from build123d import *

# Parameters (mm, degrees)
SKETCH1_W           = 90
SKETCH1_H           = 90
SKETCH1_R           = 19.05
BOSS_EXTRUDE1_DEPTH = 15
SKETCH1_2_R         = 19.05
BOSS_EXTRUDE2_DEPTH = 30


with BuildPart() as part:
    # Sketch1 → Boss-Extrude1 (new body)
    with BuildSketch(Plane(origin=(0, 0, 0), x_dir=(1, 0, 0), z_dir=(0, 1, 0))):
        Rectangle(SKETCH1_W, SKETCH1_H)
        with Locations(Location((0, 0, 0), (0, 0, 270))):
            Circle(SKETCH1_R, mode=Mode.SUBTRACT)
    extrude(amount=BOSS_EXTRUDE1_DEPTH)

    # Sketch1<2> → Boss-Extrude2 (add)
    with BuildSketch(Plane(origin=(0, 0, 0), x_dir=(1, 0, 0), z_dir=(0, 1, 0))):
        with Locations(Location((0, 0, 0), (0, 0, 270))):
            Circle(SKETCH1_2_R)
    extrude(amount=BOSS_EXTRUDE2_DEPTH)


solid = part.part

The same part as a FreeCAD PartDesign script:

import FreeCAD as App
import Part
import Sketcher

doc = App.newDocument("Part")
body = doc.addObject("PartDesign::Body", "Body")

# Sketch on XZ plane
sketch1 = body.newObject("Sketcher::SketchObject", "Sketch")
sketch1.AttachmentSupport = (doc.getObject("XZ_Plane"), [""])
sketch1.MapMode = "FlatFace"
sketch1.addGeometry([
    Part.LineSegment(App.Vector(-45, -45, 0), App.Vector(-45, 45, 0)),  # 0
    Part.LineSegment(App.Vector(-45, 45, 0), App.Vector(45, 45, 0)),  # 1
    Part.LineSegment(App.Vector(45, 45, 0), App.Vector(45, -45, 0)),  # 2
    Part.LineSegment(App.Vector(45, -45, 0), App.Vector(-45, -45, 0)),  # 3
    Part.Circle(App.Vector(0, 0, 0), App.Vector(0, 0, 1), 19),  # 4
], False)
sketch1.addConstraint([
    Sketcher.Constraint("Coincident", 0, 2, 1, 1),
    Sketcher.Constraint("Coincident", 1, 2, 2, 1),
    Sketcher.Constraint("Coincident", 2, 2, 3, 1),
    Sketcher.Constraint("Coincident", 3, 2, 0, 1),
    Sketcher.Constraint("Vertical", 0),
    Sketcher.Constraint("Horizontal", 1),
    Sketcher.Constraint("Vertical", 2),
    Sketcher.Constraint("Horizontal", 3),
    Sketcher.Constraint("Coincident", 4, 3, -1, 1),
    Sketcher.Constraint("Symmetric", 0, 2, 2, 2, -1, 1),
    Sketcher.Constraint("Equal", 3, 0),
    Sketcher.Constraint("Diameter", 4, 38.1),
    Sketcher.Constraint("DistanceX", 1, 1, 1, 2, 90.0),
])
pad1 = body.newObject("PartDesign::Pad", "Pad")
pad1.Profile = sketch1
pad1.Length = 15
pad1.Reversed = True

# Sketch on XZ plane
sketch2 = body.newObject("Sketcher::SketchObject", "Sketch001")
sketch2.AttachmentSupport = (doc.getObject("XZ_Plane"), [""])
sketch2.MapMode = "FlatFace"
sketch2.addGeometry(Part.Circle(App.Vector(0, 0, 0), App.Vector(0, 0, 1), 19), False)
sketch2.addConstraint([
    Sketcher.Constraint("Coincident", 0, 3, -1, 1),
    Sketcher.Constraint("Diameter", 0, 38.1),
])
pad2 = body.newObject("PartDesign::Pad", "Pad001")
pad2.Profile = sketch2
pad2.Length = 30
pad2.Reversed = True

doc.recompute()
